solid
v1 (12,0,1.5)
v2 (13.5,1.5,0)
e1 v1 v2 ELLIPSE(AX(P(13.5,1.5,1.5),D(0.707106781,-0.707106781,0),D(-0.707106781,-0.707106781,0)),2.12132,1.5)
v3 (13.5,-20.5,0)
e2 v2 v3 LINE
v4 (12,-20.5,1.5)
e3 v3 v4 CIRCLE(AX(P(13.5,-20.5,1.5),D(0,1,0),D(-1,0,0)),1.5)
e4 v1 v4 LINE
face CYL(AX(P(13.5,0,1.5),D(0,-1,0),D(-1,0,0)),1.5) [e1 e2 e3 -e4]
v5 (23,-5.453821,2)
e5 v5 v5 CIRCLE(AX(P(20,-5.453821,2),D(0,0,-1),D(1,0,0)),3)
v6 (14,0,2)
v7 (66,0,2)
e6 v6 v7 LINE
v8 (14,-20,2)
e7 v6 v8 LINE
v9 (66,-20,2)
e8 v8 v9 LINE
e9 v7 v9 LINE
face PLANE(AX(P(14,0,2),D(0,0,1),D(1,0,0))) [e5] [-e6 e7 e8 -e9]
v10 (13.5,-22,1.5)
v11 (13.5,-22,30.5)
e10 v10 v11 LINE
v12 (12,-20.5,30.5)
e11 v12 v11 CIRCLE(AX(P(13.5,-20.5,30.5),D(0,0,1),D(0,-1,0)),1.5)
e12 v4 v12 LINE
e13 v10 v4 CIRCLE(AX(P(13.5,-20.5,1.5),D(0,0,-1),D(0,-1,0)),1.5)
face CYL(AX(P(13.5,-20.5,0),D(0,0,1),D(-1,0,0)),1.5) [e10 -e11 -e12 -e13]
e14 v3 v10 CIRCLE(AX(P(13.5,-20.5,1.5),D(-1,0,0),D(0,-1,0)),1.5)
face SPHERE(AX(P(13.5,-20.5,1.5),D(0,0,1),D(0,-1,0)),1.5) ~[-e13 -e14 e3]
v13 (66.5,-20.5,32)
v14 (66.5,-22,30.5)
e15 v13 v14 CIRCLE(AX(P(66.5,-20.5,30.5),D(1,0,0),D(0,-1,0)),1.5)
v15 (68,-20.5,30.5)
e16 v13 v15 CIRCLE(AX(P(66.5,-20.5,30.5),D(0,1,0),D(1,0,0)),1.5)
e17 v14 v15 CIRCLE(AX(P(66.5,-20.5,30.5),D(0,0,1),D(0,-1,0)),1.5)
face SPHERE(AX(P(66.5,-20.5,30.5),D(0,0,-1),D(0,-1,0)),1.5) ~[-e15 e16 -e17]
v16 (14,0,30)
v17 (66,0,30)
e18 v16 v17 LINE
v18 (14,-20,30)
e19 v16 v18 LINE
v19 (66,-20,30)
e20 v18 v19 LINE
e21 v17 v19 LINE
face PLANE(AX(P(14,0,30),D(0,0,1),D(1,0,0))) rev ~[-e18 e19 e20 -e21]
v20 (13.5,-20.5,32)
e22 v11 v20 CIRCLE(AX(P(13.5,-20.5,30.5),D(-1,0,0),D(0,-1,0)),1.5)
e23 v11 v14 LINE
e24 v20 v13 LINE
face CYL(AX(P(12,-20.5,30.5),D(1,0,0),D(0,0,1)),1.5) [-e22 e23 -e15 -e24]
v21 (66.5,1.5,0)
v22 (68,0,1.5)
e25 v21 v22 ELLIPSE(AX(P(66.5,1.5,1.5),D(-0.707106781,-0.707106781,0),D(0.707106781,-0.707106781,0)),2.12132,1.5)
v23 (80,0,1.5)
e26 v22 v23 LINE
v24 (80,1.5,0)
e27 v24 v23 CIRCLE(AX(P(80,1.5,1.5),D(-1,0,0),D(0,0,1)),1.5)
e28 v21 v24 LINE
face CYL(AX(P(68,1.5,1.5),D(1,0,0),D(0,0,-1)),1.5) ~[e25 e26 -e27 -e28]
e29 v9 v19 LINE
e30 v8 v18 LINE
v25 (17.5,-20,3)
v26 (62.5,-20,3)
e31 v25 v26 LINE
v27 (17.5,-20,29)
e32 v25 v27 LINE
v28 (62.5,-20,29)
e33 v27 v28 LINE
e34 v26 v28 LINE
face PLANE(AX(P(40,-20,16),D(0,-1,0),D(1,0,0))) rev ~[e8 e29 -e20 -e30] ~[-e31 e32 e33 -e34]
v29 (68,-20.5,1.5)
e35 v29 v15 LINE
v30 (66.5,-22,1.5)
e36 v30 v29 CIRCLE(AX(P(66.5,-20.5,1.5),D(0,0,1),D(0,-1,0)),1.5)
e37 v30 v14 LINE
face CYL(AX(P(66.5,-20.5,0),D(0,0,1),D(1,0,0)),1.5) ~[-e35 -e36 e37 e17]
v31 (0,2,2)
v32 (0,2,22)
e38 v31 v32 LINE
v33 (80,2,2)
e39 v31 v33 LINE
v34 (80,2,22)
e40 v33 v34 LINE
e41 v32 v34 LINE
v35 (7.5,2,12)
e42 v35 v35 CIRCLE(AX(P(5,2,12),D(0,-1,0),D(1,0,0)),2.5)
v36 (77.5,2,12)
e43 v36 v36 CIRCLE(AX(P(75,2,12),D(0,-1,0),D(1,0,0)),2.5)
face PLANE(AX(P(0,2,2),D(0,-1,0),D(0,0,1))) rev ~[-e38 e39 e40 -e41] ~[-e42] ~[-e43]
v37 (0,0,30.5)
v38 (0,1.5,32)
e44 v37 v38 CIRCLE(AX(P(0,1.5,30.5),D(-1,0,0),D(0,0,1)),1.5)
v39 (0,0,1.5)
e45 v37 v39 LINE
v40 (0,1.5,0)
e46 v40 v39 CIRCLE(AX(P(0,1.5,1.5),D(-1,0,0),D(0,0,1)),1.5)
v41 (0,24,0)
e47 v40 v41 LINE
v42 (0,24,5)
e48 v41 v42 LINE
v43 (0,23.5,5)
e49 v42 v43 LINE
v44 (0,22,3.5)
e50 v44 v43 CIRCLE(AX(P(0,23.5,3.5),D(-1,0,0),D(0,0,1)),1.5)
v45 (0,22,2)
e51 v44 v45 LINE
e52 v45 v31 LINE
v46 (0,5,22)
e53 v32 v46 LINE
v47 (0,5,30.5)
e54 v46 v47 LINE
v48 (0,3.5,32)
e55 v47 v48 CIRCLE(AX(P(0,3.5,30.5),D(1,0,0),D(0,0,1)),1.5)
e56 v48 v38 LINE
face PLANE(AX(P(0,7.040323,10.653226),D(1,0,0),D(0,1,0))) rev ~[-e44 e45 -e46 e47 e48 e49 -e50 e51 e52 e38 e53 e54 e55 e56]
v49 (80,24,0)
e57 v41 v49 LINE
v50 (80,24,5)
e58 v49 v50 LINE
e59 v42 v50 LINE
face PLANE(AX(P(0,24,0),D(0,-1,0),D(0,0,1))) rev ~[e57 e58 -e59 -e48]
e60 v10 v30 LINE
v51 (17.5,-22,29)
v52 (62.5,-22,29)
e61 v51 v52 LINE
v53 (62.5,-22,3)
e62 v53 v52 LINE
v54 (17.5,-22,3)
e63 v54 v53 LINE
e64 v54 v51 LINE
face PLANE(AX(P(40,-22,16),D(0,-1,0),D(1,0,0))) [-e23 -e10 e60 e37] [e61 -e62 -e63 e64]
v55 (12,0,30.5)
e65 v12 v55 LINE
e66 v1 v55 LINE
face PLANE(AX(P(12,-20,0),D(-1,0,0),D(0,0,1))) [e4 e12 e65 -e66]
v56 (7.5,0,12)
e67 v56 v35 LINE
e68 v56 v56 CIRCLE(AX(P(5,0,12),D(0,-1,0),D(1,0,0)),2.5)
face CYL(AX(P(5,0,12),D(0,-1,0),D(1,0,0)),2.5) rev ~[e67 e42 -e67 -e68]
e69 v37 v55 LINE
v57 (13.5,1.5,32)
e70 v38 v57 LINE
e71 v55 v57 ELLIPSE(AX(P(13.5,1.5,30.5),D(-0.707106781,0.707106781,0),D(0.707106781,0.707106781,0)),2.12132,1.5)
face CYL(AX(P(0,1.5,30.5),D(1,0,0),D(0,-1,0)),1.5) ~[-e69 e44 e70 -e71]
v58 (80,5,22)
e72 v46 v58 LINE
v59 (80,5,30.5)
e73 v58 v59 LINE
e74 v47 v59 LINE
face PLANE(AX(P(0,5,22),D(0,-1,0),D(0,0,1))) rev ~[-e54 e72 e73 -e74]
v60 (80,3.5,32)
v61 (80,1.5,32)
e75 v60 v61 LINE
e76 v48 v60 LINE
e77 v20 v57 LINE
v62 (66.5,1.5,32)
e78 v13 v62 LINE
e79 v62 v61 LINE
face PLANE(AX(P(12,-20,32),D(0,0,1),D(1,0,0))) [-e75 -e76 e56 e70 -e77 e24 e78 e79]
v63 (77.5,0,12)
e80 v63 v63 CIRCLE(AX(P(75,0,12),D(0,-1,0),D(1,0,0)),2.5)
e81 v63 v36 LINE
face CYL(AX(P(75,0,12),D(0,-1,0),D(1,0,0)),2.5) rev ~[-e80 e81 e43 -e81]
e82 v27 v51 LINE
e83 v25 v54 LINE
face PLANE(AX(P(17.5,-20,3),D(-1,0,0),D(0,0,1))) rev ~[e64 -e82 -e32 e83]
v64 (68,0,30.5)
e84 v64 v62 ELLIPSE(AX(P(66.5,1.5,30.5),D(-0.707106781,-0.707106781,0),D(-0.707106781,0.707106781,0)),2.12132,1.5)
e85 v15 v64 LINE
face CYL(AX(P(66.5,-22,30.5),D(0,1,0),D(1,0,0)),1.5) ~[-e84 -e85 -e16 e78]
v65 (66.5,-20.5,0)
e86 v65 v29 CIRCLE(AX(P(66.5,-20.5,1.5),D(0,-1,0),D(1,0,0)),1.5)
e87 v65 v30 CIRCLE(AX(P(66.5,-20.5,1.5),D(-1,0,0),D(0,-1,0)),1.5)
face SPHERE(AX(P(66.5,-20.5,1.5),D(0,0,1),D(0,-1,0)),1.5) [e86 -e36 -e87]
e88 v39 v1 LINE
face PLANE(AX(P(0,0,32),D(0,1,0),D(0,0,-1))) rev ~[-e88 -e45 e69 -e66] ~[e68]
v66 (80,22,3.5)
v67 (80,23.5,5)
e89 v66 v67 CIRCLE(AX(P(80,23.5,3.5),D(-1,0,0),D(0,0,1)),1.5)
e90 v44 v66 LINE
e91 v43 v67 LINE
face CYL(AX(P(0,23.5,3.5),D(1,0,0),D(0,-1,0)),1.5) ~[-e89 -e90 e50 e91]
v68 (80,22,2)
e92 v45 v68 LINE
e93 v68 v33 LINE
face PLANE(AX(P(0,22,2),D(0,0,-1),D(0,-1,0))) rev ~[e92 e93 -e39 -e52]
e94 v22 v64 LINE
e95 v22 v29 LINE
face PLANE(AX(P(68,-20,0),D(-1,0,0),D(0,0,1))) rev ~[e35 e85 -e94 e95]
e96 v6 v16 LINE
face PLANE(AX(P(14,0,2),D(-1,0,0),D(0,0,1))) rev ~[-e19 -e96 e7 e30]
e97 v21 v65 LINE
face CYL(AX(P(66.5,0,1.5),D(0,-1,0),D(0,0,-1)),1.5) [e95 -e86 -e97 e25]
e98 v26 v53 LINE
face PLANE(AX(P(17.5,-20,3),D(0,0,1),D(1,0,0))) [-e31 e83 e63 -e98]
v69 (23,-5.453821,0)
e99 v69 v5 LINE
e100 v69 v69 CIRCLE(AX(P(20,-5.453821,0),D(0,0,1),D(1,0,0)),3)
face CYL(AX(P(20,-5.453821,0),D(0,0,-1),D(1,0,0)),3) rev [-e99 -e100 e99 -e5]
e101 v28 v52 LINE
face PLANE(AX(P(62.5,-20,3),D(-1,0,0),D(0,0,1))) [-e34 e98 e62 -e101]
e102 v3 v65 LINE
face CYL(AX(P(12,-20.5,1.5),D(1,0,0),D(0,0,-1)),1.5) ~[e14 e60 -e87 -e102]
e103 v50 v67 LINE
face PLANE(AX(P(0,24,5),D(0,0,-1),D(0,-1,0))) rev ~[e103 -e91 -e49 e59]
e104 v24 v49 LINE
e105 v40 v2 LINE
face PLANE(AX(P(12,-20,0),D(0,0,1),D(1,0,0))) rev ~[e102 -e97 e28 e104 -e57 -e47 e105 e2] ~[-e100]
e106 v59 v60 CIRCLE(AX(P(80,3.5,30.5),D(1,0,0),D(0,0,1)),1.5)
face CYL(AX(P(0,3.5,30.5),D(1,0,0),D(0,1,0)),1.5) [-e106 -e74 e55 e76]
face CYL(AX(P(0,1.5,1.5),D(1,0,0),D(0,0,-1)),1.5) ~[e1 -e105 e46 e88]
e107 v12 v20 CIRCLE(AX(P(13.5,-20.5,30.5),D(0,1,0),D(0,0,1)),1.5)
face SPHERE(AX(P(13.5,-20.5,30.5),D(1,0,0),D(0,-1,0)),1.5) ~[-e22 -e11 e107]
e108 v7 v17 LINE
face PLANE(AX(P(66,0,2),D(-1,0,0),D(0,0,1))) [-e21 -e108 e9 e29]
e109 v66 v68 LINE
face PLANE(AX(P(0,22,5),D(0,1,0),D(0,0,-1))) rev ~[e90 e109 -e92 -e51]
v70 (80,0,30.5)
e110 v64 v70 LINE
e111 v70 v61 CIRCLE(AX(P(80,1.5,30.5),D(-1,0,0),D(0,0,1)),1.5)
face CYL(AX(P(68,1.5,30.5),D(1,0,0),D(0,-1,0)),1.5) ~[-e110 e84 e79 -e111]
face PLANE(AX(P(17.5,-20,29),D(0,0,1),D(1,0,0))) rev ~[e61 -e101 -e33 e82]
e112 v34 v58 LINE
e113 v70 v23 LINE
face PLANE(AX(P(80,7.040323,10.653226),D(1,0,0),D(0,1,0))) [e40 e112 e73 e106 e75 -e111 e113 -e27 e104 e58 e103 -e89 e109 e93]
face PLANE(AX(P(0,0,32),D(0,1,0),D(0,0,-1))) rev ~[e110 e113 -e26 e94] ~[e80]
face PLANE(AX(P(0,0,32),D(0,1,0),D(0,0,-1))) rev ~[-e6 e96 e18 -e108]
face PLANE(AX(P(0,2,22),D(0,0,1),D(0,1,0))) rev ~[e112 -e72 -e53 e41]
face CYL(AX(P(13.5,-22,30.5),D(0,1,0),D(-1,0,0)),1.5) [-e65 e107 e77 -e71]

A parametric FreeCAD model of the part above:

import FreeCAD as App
import Part
import Sketcher


def edges_at(feature, points):
    """Names of the edges that pass closest to the given points."""
    edges = feature.Shape.Edges
    near = lambda p: min(range(len(edges)), key=lambda i: edges[i].distToShape(Part.Vertex(*p))[0])
    return sorted({f"Edge{near(p) + 1}" for p in points})

doc = App.newDocument("Part")
body = doc.addObject("PartDesign::Body", "Body")

sketch1 = doc.addObject("Sketcher::SketchObject", "Sketch")
body.addObject(sketch1)
sketch1.AttachmentSupport = (doc.YZ_Plane, [""])
sketch1.MapMode = "FlatFace"
sketch1.addGeometry([
    Part.LineSegment(App.Vector(0, 32, 0), App.Vector(0, 0, 0)),
    Part.LineSegment(App.Vector(0, 0, 0), App.Vector(24, 0, 0)),
    Part.LineSegment(App.Vector(24, 0, 0), App.Vector(24, 5, 0)),
    Part.LineSegment(App.Vector(24, 5, 0), App.Vector(22, 5, 0)),
    Part.LineSegment(App.Vector(22, 5, 0), App.Vector(22, 2, 0)),
    Part.LineSegment(App.Vector(22, 2, 0), App.Vector(2, 2, 0)),
    Part.LineSegment(App.Vector(2, 2, 0), App.Vector(2, 22, 0)),
    Part.LineSegment(App.Vector(2, 22, 0), App.Vector(5, 22, 0)),
    Part.LineSegment(App.Vector(5, 22, 0), App.Vector(5, 32, 0)),
    Part.LineSegment(App.Vector(5, 32, 0), App.Vector(0, 32, 0)),
], False)
sketch1.addConstraint([
    Sketcher.Constraint("Coincident", 0, 2, 1, 1),
    Sketcher.Constraint("Coincident", 1, 2, 2, 1),
    Sketcher.Constraint("Coincident", 2, 2, 3, 1),
    Sketcher.Constraint("Coincident", 3, 2, 4, 1),
    Sketcher.Constraint("Coincident", 4, 2, 5, 1),
    Sketcher.Constraint("Coincident", 5, 2, 6, 1),
    Sketcher.Constraint("Coincident", 6, 2, 7, 1),
    Sketcher.Constraint("Coincident", 7, 2, 8, 1),
    Sketcher.Constraint("Coincident", 8, 2, 9, 1),
    Sketcher.Constraint("Coincident", 9, 2, 0, 1),
    Sketcher.Constraint("Vertical", 0),
    Sketcher.Constraint("Horizontal", 1),
    Sketcher.Constraint("Vertical", 2),
    Sketcher.Constraint("Horizontal", 3),
    Sketcher.Constraint("Vertical", 4),
    Sketcher.Constraint("Horizontal", 5),
    Sketcher.Constraint("Vertical", 6),
    Sketcher.Constraint("Horizontal", 7),
    Sketcher.Constraint("Vertical", 8),
    Sketcher.Constraint("Horizontal", 9),
    Sketcher.Constraint("Coincident", 0, 2, -1, 1),
    Sketcher.Constraint("Equal", 9, 2),
    Sketcher.Constraint("Equal", 7, 4),
    Sketcher.Constraint("Equal", 5, 6),
    Sketcher.Constraint("DistanceX", 1, 1, 1, 2, 24.0),
    Sketcher.Constraint("DistanceX", 3, 2, 3, 1, 2.0),
    Sketcher.Constraint("DistanceX", 5, 2, 5, 1, 20.0),
    Sketcher.Constraint("DistanceX", 7, 1, 7, 2, 3.0),
    Sketcher.Constraint("DistanceY", 0, 2, 0, 1, 32.0),
])
pad1 = doc.addObject("PartDesign::Pad", "Pad")
body.addObject(pad1)
pad1.Profile = sketch1
pad1.Length = 80

sketch2 = doc.addObject("Sketcher::SketchObject", "Sketch001")
body.addObject(sketch2)
sketch2.AttachmentSupport = (doc.XZ_Plane, [""])
sketch2.MapMode = "FlatFace"
sketch2.addGeometry([
    Part.Circle(App.Vector(5, 12, 0), App.Vector(0, 0, 1), 2.5),
    Part.Circle(App.Vector(75, 12, 0), App.Vector(0, 0, 1), 2.5),
], False)
sketch2.addConstraint([
    Sketcher.Constraint("Equal", 0, 1),
    Sketcher.Constraint("Horizontal", 0, 3, 1, 3),
    Sketcher.Constraint("Diameter", 0, 5.0),
    Sketcher.Constraint("DistanceX", -1, 1, 0, 3, 5.0),
    Sketcher.Constraint("DistanceY", -1, 1, 0, 3, 12.0),
    Sketcher.Constraint("DistanceX", -1, 1, 1, 3, 75.0),
])
pocket1 = doc.addObject("PartDesign::Pocket", "Pocket")
body.addObject(pocket1)
pocket1.Profile = sketch2
pocket1.Length = 10

sketch3 = doc.addObject("Sketcher::SketchObject", "Sketch002")
body.addObject(sketch3)
sketch3.AttachmentSupport = (doc.XZ_Plane, [""])
sketch3.MapMode = "FlatFace"
sketch3.addGeometry([
    Part.LineSegment(App.Vector(12, 32, 0), App.Vector(12, 0, 0)),
    Part.LineSegment(App.Vector(12, 0, 0), App.Vector(68, 0, 0)),
    Part.LineSegment(App.Vector(68, 0, 0), App.Vector(68, 32, 0)),
    Part.LineSegment(App.Vector(68, 32, 0), App.Vector(12, 32, 0)),
    Part.LineSegment(App.Vector(66, 2, 0), App.Vector(14, 2, 0)),
    Part.LineSegment(App.Vector(14, 2, 0), App.Vector(14, 30, 0)),
    Part.LineSegment(App.Vector(14, 30, 0), App.Vector(66, 30, 0)),
    Part.LineSegment(App.Vector(66, 30, 0), App.Vector(66, 2, 0)),
], False)
sketch3.addConstraint([
    Sketcher.Constraint("Coincident", 0, 2, 1, 1),
    Sketcher.Constraint("Coincident", 1, 2, 2, 1),
    Sketcher.Constraint("Coincident", 2, 2, 3, 1),
    Sketcher.Constraint("Coincident", 3, 2, 0, 1),
    Sketcher.Constraint("Coincident", 4, 2, 5, 1),
    Sketcher.Constraint("Coincident", 5, 2, 6, 1),
    Sketcher.Constraint("Coincident", 6, 2, 7, 1),
    Sketcher.Constraint("Coincident", 7, 2, 4, 1),
    Sketcher.Constraint("Vertical", 0),
    Sketcher.Constraint("Horizontal", 1),
    Sketcher.Constraint("Vertical", 2),
    Sketcher.Constraint("Horizontal", 3),
    Sketcher.Constraint("Horizontal", 4),
    Sketcher.Constraint("Vertical", 5),
    Sketcher.Constraint("Horizontal", 6),
    Sketcher.Constraint("Vertical", 7),
    Sketcher.Constraint("PointOnObject", 0, 2, -1),
    Sketcher.Constraint("DistanceX", 1, 1, 1, 2, 56.0),
    Sketcher.Constraint("DistanceX", 4, 2, 4, 1, 52.0),
    Sketcher.Constraint("DistanceY", 0, 2, 0, 1, 32.0),
    Sketcher.Constraint("DistanceY", 5, 1, 5, 2, 28.0),
    Sketcher.Constraint("DistanceX", -1, 1, 0, 2, 12.0),
    Sketcher.Constraint("DistanceX", -1, 1, 4, 2, 14.0),
    Sketcher.Constraint("DistanceY", -1, 1, 4, 2, 2.0),
])
pad2 = doc.addObject("PartDesign::Pad", "Pad001")
body.addObject(pad2)
pad2.Profile = sketch3
pad2.Length = 20

sketch4 = doc.addObject("Sketcher::SketchObject", "Sketch003")
body.addObject(sketch4)
sketch4.AttachmentSupport = (doc.XZ_Plane, [""])
sketch4.MapMode = "FlatFace"
sketch4.AttachmentOffset = App.Placement(App.Vector(0, 0, 20), App.Rotation())
sketch4.addGeometry([
    Part.LineSegment(App.Vector(12, 32, 0), App.Vector(12, 0, 0)),
    Part.LineSegment(App.Vector(12, 0, 0), App.Vector(68, 0, 0)),
    Part.LineSegment(App.Vector(68, 0, 0), App.Vector(68, 32, 0)),
    Part.LineSegment(App.Vector(68, 32, 0), App.Vector(12, 32, 0)),
    Part.LineSegment(App.Vector(62.5, 3, 0), App.Vector(17.5, 3, 0)),
    Part.LineSegment(App.Vector(17.5, 3, 0), App.Vector(17.5, 29, 0)),
    Part.LineSegment(App.Vector(17.5, 29, 0), App.Vector(62.5, 29, 0)),
    Part.LineSegment(App.Vector(62.5, 29, 0), App.Vector(62.5, 3, 0)),
], False)
sketch4.addConstraint([
    Sketcher.Constraint("Coincident", 0, 2, 1, 1),
    Sketcher.Constraint("Coincident", 1, 2, 2, 1),
    Sketcher.Constraint("Coincident", 2, 2, 3, 1),
    Sketcher.Constraint("Coincident", 3, 2, 0, 1),
    Sketcher.Constraint("Coincident", 4, 2, 5, 1),
    Sketcher.Constraint("Coincident", 5, 2, 6, 1),
    Sketcher.Constraint("Coincident", 6, 2, 7, 1),
    Sketcher.Constraint("Coincident", 7, 2, 4, 1),
    Sketcher.Constraint("Vertical", 0),
    Sketcher.Constraint("Horizontal", 1),
    Sketcher.Constraint("Vertical", 2),
    Sketcher.Constraint("Horizontal", 3),
    Sketcher.Constraint("Horizontal", 4),
    Sketcher.Constraint("Vertical", 5),
    Sketcher.Constraint("Horizontal", 6),
    Sketcher.Constraint("Vertical", 7),
    Sketcher.Constraint("PointOnObject", 0, 2, -1),
    Sketcher.Constraint("DistanceX", 1, 1, 1, 2, 56.0),
    Sketcher.Constraint("DistanceX", 4, 2, 4, 1, 45.0),
    Sketcher.Constraint("DistanceY", 0, 2, 0, 1, 32.0),
    Sketcher.Constraint("DistanceY", 5, 1, 5, 2, 26.0),
    Sketcher.Constraint("DistanceX", -1, 1, 0, 2, 12.0),
    Sketcher.Constraint("DistanceY", -1, 1, 4, 2, 3.0),
    Sketcher.Constraint("DistanceX", -1, 1, 4, 2, 17.5),
])
pad3 = doc.addObject("PartDesign::Pad", "Pad002")
body.addObject(pad3)
pad3.Profile = sketch4
pad3.Length = 2
doc.recompute()

fillet = doc.addObject("PartDesign::Fillet", "Fillet")
body.addObject(fillet)
fillet.Base = (pad3, edges_at(pad3, [
    (68, -22, 16),
    (40, -22, 32),
    (12, -22, 16),
    (40, -22, 0),
    (68, -11, 32),
    (12, -11, 32),
    (12, -11, 0),
    (68, -11, 0),
    (40, 22, 5),
    (40, 5, 32),
    (6, 0, 32),
    (74, 0, 32),
    (6, 0, 0),
    (74, 0, 0),
]))
fillet.Radius = 1.5

sketch5 = doc.addObject("Sketcher::SketchObject", "Sketch004")
body.addObject(sketch5)
sketch5.AttachmentSupport = (doc.XY_Plane, [""])
sketch5.MapMode = "FlatFace"
sketch5.addGeometry(Part.Circle(App.Vector(20, -5.453821, 0), App.Vector(0, 0, 1), 3), False)
sketch5.addConstraint([
    Sketcher.Constraint("Diameter", 0, 6.0),
    Sketcher.Constraint("DistanceX", -1, 1, 0, 3, 20.0),
    Sketcher.Constraint("DistanceY", 0, 3, -1, 1, 5.453821),
])
pocket2 = doc.addObject("PartDesign::Pocket", "Pocket001")
body.addObject(pocket2)
pocket2.Profile = sketch5
pocket2.Length = 10
pocket2.Reversed = True

doc.recompute()
